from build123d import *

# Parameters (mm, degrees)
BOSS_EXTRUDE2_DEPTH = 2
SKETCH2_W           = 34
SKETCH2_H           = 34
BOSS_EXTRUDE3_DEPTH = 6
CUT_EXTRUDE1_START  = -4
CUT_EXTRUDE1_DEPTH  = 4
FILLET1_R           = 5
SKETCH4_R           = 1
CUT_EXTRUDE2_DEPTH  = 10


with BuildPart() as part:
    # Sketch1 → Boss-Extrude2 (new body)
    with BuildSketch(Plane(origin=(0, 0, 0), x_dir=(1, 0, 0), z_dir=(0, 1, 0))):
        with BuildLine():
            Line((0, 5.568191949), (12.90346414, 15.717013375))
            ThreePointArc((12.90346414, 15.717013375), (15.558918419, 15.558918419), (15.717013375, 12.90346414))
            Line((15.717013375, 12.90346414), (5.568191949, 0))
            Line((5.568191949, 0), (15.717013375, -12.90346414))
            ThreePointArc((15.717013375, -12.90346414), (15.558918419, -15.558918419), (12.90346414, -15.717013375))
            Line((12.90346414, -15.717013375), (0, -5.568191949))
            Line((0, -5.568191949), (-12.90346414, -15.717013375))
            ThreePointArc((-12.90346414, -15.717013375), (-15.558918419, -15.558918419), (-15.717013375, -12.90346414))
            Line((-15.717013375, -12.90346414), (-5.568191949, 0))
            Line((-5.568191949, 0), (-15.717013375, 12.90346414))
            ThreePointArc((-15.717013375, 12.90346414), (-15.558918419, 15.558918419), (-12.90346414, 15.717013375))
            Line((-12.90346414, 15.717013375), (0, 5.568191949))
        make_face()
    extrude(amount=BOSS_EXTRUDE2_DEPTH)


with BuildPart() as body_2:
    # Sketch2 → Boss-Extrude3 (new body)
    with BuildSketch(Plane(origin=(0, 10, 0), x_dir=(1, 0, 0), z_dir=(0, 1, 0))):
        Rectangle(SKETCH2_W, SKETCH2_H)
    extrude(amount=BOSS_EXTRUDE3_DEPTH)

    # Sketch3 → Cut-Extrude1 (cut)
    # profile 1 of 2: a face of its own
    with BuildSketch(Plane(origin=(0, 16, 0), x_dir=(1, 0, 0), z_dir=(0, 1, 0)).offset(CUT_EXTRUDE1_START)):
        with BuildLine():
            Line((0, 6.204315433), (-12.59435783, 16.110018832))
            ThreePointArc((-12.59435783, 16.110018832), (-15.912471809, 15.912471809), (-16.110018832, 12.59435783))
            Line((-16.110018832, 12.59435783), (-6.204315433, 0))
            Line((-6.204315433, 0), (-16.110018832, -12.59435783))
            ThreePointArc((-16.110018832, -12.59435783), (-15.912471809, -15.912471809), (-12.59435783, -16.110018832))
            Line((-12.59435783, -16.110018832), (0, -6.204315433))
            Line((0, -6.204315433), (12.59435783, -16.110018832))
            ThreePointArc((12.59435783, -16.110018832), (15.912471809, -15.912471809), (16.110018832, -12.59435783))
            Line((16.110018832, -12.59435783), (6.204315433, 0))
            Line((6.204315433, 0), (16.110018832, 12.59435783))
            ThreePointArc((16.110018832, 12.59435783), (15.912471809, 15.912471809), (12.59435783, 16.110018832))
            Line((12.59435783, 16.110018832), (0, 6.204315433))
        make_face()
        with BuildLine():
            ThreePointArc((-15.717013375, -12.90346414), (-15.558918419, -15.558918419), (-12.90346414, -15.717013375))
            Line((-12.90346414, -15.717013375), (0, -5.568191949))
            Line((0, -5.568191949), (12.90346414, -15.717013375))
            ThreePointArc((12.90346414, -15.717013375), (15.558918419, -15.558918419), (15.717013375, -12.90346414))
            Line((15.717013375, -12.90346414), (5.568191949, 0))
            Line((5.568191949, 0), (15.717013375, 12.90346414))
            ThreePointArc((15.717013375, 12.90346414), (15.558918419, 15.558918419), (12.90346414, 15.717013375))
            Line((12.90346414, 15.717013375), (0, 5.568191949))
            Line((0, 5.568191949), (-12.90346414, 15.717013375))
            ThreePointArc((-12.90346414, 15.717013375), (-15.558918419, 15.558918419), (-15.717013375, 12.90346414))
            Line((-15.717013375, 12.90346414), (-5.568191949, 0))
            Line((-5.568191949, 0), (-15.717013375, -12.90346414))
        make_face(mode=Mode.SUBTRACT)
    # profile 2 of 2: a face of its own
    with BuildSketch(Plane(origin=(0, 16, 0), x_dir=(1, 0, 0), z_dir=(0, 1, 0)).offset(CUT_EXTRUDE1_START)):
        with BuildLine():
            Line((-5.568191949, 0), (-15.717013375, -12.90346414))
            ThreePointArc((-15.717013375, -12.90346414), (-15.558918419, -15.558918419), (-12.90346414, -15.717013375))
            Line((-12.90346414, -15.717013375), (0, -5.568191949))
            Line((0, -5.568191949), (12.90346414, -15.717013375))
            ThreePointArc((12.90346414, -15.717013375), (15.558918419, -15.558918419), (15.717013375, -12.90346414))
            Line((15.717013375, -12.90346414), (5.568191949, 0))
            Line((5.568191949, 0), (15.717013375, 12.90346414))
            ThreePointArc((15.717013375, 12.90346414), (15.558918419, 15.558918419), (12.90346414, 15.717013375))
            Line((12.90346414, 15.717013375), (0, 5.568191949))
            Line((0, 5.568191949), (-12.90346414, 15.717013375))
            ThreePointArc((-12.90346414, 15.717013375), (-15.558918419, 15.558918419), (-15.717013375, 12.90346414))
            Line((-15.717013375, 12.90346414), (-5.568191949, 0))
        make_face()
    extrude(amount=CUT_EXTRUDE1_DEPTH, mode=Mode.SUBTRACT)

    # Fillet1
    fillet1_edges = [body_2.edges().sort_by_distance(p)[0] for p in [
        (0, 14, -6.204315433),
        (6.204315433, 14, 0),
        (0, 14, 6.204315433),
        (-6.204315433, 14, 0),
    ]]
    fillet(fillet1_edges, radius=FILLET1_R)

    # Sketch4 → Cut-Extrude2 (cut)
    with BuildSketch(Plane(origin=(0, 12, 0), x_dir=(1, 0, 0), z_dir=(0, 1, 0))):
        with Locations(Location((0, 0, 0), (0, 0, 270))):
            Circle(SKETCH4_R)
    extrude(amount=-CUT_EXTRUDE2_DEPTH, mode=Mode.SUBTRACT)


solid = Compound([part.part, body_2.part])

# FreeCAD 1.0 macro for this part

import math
import FreeCAD as App
import Part
import Sketcher

V = App.Vector


def edges_at(feature, points):
    """Names of the edges that pass closest to the given points."""
    edges = feature.Shape.Edges
    near = lambda p: min(range(len(edges)), key=lambda i: edges[i].distToShape(Part.Vertex(*p))[0])
    return sorted({f"Edge{near(p) + 1}" for p in points})


def add_polygon(sketch, points):
    """Adds a closed chain of lines whose ends are joined by coincident constraints."""
    first, n = sketch.GeometryCount, len(points)
    for a, b in zip(points, points[1:] + points[:1]):
        sketch.addGeometry(Part.LineSegment(App.Vector(*a, 0), App.Vector(*b, 0)), False)
    for i in range(n):
        sketch.addConstraint(Sketcher.Constraint("Coincident", first + i, 2, first + (i + 1) % n, 1))

doc = App.newDocument("Part")
params = doc.addObject("Spreadsheet::Sheet", "Params")
for row, (alias, value) in enumerate([
    ("pad1_length", "2 mm"),
    ("sketch2_width", "34 mm"),
    ("pad2_length", "6 mm"),
    ("pocket1_length", "4 mm"),
    ("fillet_radius", "5 mm"),
    ("sketch4_diameter", "2 mm"),
    ("pocket2_length", "10 mm"),
], start=1):
    params.set(f"A{row}", alias)
    params.set(f"B{row}", "=" + value)
    params.setAlias(f"B{row}", alias)

body = doc.addObject("PartDesign::Body", "Body")

sketch1 = doc.addObject("Sketcher::SketchObject", "Sketch")
body.addObject(sketch1)
sketch1.AttachmentSupport = (doc.XZ_Plane, [""])
sketch1.MapMode = "FlatFace"
sketch1.addGeometry(Part.LineSegment(V(12.9, -15.7, 0), V(0, -5.6, 0)), False)
sketch1.addGeometry(Part.LineSegment(V(0, -5.6, 0), V(-12.9, -15.7, 0)), False)
sketch1.addGeometry(Part.ArcOfCircle(Part.Circle(V(-14.1, -14.1, 0), V(0, 0, 1), 2), math.radians(142), math.radians(308)), False)
sketch1.addGeometry(Part.LineSegment(V(-15.7, -12.9, 0), V(-5.6, 0, 0)), False)
sketch1.addGeometry(Part.LineSegment(V(-5.6, 0, 0), V(-15.7, 12.9, 0)), False)
sketch1.addGeometry(Part.ArcOfCircle(Part.Circle(V(-14.1, 14.1, 0), V(0, 0, 1), 2), math.radians(52), math.radians(218)), False)
sketch1.addGeometry(Part.LineSegment(V(-12.9, 15.7, 0), V(0, 5.6, 0)), False)
sketch1.addGeometry(Part.LineSegment(V(0, 5.6, 0), V(12.9, 15.7, 0)), False)
sketch1.addGeometry(Part.ArcOfCircle(Part.Circle(V(14.1, 14.1, 0), V(0, 0, 1), 2), math.radians(-38), math.radians(128)), False)
sketch1.addGeometry(Part.LineSegment(V(15.7, 12.9, 0), V(5.6, 0, 0)), False)
sketch1.addGeometry(Part.LineSegment(V(5.6, 0, 0), V(15.7, -12.9, 0)), False)
sketch1.addGeometry(Part.ArcOfCircle(Part.Circle(V(14.1, -14.1, 0), V(0, 0, 1), 2), math.radians(-128), math.radians(38)), False)
sketch1.addConstraint(Sketcher.Constraint("Coincident", 0, 2, 1, 1))
sketch1.addConstraint(Sketcher.Constraint("Tangent", 1, 2, 2, 2))
sketch1.addConstraint(Sketcher.Constraint("Tangent", 2, 1, 3, 1))
sketch1.addConstraint(Sketcher.Constraint("Coincident", 3, 2, 4, 1))
sketch1.addConstraint(Sketcher.Constraint("Tangent", 4, 2, 5, 2))
sketch1.addConstraint(Sketcher.Constraint("Tangent", 5, 1, 6, 1))
sketch1.addConstraint(Sketcher.Constraint("Coincident", 6, 2, 7, 1))
sketch1.addConstraint(Sketcher.Constraint("Tangent", 7, 2, 8, 2))
sketch1.addConstraint(Sketcher.Constraint("Tangent", 8, 1, 9, 1))
sketch1.addConstraint(Sketcher.Constraint("Coincident", 9, 2, 10, 1))
sketch1.addConstraint(Sketcher.Constraint("Tangent", 10, 2, 11, 2))
sketch1.addConstraint(Sketcher.Constraint("Tangent", 11, 1, 0, 1))
sketch1.addConstraint(Sketcher.Constraint("Equal", 2, 5))
sketch1.addConstraint(Sketcher.Constraint("Equal", 5, 8))
sketch1.addConstraint(Sketcher.Constraint("Equal", 8, 11))
sketch1.addConstraint(Sketcher.Constraint("Symmetric", 2, 3, 8, 3, -1, 1))
sketch1.addConstraint(Sketcher.Constraint("Symmetric", 5, 3, 11, 3, -1, 1))
sketch1.addConstraint(Sketcher.Constraint("Symmetric", 0, 2, 6, 2, -1, 1))
sketch1.addConstraint(Sketcher.Constraint("Symmetric", 3, 2, 9, 2, -1, 1))
sketch1.addConstraint(Sketcher.Constraint("Symmetric", 5, 3, 8, 3, -2))
sketch1.addConstraint(Sketcher.Constraint("PointOnObject", 0, 2, -2))
sketch1.addConstraint(Sketcher.Constraint("PointOnObject", 3, 2, -1))
sketch1.addConstraint(Sketcher.Constraint("Perpendicular", 0, 3))
sketch1.addConstraint(Sketcher.Constraint("Equal", 1, 3))
sketch1.addConstraint(Sketcher.Constraint("Radius", 2, 2.003633))
sketch1.addConstraint(Sketcher.Constraint("DistanceX", 1, 2, 11, 3, 27.0456))
sketch1.addConstraint(Sketcher.Constraint("DistanceY", 0, 2, -1, 1, 5.568192))
pad1 = doc.addObject("PartDesign::Pad", "Pad")
body.addObject(pad1)
pad1.Profile = sketch1
pad1.setExpression("Length", "Params.pad1_length")
pad1.Reversed = True
body2 = doc.addObject("PartDesign::Body", "Body001")

sketch2 = doc.addObject("Sketcher::SketchObject", "Sketch001")
body2.addObject(sketch2)
sketch2.AttachmentSupport = (doc.getObject("XZ_Plane001"), [""])
sketch2.MapMode = "FlatFace"
sketch2.AttachmentOffset = App.Placement(V(0, 0, -10), App.Rotation())
add_polygon(sketch2, [(-17, -17), (-17, 17), (17, 17), (17, -17)])
sketch2.addConstraint(Sketcher.Constraint("Vertical", 0))
sketch2.addConstraint(Sketcher.Constraint("Horizontal", 1))
sketch2.addConstraint(Sketcher.Constraint("Vertical", 2))
sketch2.addConstraint(Sketcher.Constraint("Horizontal", 3))
sketch2.addConstraint(Sketcher.Constraint("Symmetric", 0, 2, 2, 2, -1, 1))
sketch2.addConstraint(Sketcher.Constraint("Equal", 3, 0))
sketch2.addConstraint(Sketcher.Constraint("DistanceX", 1, 1, 1, 2, 34.0))
sketch2.setExpression("Constraints[10]", "Params.sketch2_width")
pad2 = doc.addObject("PartDesign::Pad", "Pad001")
body2.addObject(pad2)
pad2.Profile = sketch2
pad2.setExpression("Length", "Params.pad2_length")
pad2.Reversed = True

sketch3 = doc.addObject("Sketcher::SketchObject", "Sketch002")
body2.addObject(sketch3)
sketch3.AttachmentSupport = (doc.getObject("XZ_Plane001"), [""])
sketch3.MapMode = "FlatFace"
sketch3.AttachmentOffset = App.Placement(V(0, 0, -12), App.Rotation())
sketch3.addGeometry(Part.LineSegment(V(0, -6.2, 0), V(-12.6, -16.1, 0)), False)
sketch3.addGeometry(Part.ArcOfCircle(Part.Circle(V(-14.1, -14.1, 0), V(0, 0, 1), 2.5), math.radians(142), math.radians(308)), False)
sketch3.addGeometry(Part.LineSegment(V(-16.1, -12.6, 0), V(-6.2, 0, 0)), False)
sketch3.addGeometry(Part.LineSegment(V(-6.2, 0, 0), V(-16.1, 12.6, 0)), False)
sketch3.addGeometry(Part.ArcOfCircle(Part.Circle(V(-14.1, 14.1, 0), V(0, 0, 1), 2.5), math.radians(52), math.radians(218)), False)
sketch3.addGeometry(Part.LineSegment(V(-12.6, 16.1, 0), V(0, 6.2, 0)), False)
sketch3.addGeometry(Part.LineSegment(V(0, 6.2, 0), V(12.6, 16.1, 0)), False)
sketch3.addGeometry(Part.ArcOfCircle(Part.Circle(V(14.1, 14.1, 0), V(0, 0, 1), 2.5), math.radians(-38), math.radians(128)), False)
sketch3.addGeometry(Part.LineSegment(V(16.1, 12.6, 0), V(6.2, 0, 0)), False)
sketch3.addGeometry(Part.LineSegment(V(6.2, 0, 0), V(16.1, -12.6, 0)), False)
sketch3.addGeometry(Part.ArcOfCircle(Part.Circle(V(14.1, -14.1, 0), V(0, 0, 1), 2.5), math.radians(-128), math.radians(38)), False)
sketch3.addGeometry(Part.LineSegment(V(12.6, -16.1, 0), V(0, -6.2, 0)), False)
sketch3.addConstraint(Sketcher.Constraint("Tangent", 0, 2, 1, 2))
sketch3.addConstraint(Sketcher.Constraint("Tangent", 1, 1, 2, 1))
sketch3.addConstraint(Sketcher.Constraint("Coincident", 2, 2, 3, 1))
sketch3.addConstraint(Sketcher.Constraint("Tangent", 3, 2, 4, 2))
sketch3.addConstraint(Sketcher.Constraint("Tangent", 4, 1, 5, 1))
sketch3.addConstraint(Sketcher.Constraint("Coincident", 5, 2, 6, 1))
sketch3.addConstraint(Sketcher.Constraint("Tangent", 6, 2, 7, 2))
sketch3.addConstraint(Sketcher.Constraint("Tangent", 7, 1, 8, 1))
sketch3.addConstraint(Sketcher.Constraint("Coincident", 8, 2, 9, 1))
sketch3.addConstraint(Sketcher.Constraint("Tangent", 9, 2, 10, 2))
sketch3.addConstraint(Sketcher.Constraint("Tangent", 10, 1, 11, 1))
sketch3.addConstraint(Sketcher.Constraint("Coincident", 11, 2, 0, 1))
sketch3.addConstraint(Sketcher.Constraint("Equal", 1, 4))
sketch3.addConstraint(Sketcher.Constraint("Equal", 4, 7))
sketch3.addConstraint(Sketcher.Constraint("Equal", 7, 10))
sketch3.addConstraint(Sketcher.Constraint("Symmetric", 1, 3, 7, 3, -1, 1))
sketch3.addConstraint(Sketcher.Constraint("Symmetric", 4, 3, 10, 3, -1, 1))
sketch3.addConstraint(Sketcher.Constraint("Symmetric", 2, 2, 8, 2, -1, 1))
sketch3.addConstraint(Sketcher.Constraint("Symmetric", 5, 2, 11, 2, -1, 1))
sketch3.addConstraint(Sketcher.Constraint("Symmetric", 4, 3, 7, 3, -2))
sketch3.addConstraint(Sketcher.Constraint("PointOnObject", 2, 2, -1))
sketch3.addConstraint(Sketcher.Constraint("PointOnObject", 5, 2, -2))
sketch3.addConstraint(Sketcher.Constraint("Perpendicular", 0, 3))
sketch3.addConstraint(Sketcher.Constraint("Equal", 0, 2))
sketch3.addConstraint(Sketcher.Constraint("Radius", 1, 2.503633))
sketch3.addConstraint(Sketcher.Constraint("DistanceY", 0, 2, -1, 1, 16.110019))
sketch3.addConstraint(Sketcher.Constraint("DistanceY", 1, 3, 4, 3, 28.284271))
pocket1 = doc.addObject("PartDesign::Pocket", "Pocket")
body2.addObject(pocket1)
pocket1.Profile = sketch3
pocket1.setExpression("Length", "Params.pocket1_length")
doc.recompute()

fillet = doc.addObject("PartDesign::Fillet", "Fillet")
body2.addObject(fillet)
fillet.Base = (pocket1, edges_at(pocket1, [
    (0, 14, -6.204),
    (6.204, 14, 0),
    (0, 14, 6.204),
    (-6.204, 14, 0),
]))
fillet.setExpression("Radius", "Params.fillet_radius")

sketch4 = doc.addObject("Sketcher::SketchObject", "Sketch003")
body2.addObject(sketch4)
sketch4.AttachmentSupport = (doc.getObject("XZ_Plane001"), [""])
sketch4.MapMode = "FlatFace"
sketch4.AttachmentOffset = App.Placement(V(0, 0, -12), App.Rotation())
sketch4.addGeometry(Part.Circle(V(0, 0, 0), V(0, 0, 1), 1), False)
sketch4.addConstraint(Sketcher.Constraint("Coincident", 0, 3, -1, 1))
sketch4.addConstraint(Sketcher.Constraint("Diameter", 0, 2.0))
sketch4.setExpression("Constraints[1]", "Params.sketch4_diameter")
pocket2 = doc.addObject("PartDesign::Pocket", "Pocket001")
body2.addObject(pocket2)
pocket2.Profile = sketch4
pocket2.setExpression("Length", "Params.pocket2_length")
pocket2.Reversed = True

doc.recompute()
